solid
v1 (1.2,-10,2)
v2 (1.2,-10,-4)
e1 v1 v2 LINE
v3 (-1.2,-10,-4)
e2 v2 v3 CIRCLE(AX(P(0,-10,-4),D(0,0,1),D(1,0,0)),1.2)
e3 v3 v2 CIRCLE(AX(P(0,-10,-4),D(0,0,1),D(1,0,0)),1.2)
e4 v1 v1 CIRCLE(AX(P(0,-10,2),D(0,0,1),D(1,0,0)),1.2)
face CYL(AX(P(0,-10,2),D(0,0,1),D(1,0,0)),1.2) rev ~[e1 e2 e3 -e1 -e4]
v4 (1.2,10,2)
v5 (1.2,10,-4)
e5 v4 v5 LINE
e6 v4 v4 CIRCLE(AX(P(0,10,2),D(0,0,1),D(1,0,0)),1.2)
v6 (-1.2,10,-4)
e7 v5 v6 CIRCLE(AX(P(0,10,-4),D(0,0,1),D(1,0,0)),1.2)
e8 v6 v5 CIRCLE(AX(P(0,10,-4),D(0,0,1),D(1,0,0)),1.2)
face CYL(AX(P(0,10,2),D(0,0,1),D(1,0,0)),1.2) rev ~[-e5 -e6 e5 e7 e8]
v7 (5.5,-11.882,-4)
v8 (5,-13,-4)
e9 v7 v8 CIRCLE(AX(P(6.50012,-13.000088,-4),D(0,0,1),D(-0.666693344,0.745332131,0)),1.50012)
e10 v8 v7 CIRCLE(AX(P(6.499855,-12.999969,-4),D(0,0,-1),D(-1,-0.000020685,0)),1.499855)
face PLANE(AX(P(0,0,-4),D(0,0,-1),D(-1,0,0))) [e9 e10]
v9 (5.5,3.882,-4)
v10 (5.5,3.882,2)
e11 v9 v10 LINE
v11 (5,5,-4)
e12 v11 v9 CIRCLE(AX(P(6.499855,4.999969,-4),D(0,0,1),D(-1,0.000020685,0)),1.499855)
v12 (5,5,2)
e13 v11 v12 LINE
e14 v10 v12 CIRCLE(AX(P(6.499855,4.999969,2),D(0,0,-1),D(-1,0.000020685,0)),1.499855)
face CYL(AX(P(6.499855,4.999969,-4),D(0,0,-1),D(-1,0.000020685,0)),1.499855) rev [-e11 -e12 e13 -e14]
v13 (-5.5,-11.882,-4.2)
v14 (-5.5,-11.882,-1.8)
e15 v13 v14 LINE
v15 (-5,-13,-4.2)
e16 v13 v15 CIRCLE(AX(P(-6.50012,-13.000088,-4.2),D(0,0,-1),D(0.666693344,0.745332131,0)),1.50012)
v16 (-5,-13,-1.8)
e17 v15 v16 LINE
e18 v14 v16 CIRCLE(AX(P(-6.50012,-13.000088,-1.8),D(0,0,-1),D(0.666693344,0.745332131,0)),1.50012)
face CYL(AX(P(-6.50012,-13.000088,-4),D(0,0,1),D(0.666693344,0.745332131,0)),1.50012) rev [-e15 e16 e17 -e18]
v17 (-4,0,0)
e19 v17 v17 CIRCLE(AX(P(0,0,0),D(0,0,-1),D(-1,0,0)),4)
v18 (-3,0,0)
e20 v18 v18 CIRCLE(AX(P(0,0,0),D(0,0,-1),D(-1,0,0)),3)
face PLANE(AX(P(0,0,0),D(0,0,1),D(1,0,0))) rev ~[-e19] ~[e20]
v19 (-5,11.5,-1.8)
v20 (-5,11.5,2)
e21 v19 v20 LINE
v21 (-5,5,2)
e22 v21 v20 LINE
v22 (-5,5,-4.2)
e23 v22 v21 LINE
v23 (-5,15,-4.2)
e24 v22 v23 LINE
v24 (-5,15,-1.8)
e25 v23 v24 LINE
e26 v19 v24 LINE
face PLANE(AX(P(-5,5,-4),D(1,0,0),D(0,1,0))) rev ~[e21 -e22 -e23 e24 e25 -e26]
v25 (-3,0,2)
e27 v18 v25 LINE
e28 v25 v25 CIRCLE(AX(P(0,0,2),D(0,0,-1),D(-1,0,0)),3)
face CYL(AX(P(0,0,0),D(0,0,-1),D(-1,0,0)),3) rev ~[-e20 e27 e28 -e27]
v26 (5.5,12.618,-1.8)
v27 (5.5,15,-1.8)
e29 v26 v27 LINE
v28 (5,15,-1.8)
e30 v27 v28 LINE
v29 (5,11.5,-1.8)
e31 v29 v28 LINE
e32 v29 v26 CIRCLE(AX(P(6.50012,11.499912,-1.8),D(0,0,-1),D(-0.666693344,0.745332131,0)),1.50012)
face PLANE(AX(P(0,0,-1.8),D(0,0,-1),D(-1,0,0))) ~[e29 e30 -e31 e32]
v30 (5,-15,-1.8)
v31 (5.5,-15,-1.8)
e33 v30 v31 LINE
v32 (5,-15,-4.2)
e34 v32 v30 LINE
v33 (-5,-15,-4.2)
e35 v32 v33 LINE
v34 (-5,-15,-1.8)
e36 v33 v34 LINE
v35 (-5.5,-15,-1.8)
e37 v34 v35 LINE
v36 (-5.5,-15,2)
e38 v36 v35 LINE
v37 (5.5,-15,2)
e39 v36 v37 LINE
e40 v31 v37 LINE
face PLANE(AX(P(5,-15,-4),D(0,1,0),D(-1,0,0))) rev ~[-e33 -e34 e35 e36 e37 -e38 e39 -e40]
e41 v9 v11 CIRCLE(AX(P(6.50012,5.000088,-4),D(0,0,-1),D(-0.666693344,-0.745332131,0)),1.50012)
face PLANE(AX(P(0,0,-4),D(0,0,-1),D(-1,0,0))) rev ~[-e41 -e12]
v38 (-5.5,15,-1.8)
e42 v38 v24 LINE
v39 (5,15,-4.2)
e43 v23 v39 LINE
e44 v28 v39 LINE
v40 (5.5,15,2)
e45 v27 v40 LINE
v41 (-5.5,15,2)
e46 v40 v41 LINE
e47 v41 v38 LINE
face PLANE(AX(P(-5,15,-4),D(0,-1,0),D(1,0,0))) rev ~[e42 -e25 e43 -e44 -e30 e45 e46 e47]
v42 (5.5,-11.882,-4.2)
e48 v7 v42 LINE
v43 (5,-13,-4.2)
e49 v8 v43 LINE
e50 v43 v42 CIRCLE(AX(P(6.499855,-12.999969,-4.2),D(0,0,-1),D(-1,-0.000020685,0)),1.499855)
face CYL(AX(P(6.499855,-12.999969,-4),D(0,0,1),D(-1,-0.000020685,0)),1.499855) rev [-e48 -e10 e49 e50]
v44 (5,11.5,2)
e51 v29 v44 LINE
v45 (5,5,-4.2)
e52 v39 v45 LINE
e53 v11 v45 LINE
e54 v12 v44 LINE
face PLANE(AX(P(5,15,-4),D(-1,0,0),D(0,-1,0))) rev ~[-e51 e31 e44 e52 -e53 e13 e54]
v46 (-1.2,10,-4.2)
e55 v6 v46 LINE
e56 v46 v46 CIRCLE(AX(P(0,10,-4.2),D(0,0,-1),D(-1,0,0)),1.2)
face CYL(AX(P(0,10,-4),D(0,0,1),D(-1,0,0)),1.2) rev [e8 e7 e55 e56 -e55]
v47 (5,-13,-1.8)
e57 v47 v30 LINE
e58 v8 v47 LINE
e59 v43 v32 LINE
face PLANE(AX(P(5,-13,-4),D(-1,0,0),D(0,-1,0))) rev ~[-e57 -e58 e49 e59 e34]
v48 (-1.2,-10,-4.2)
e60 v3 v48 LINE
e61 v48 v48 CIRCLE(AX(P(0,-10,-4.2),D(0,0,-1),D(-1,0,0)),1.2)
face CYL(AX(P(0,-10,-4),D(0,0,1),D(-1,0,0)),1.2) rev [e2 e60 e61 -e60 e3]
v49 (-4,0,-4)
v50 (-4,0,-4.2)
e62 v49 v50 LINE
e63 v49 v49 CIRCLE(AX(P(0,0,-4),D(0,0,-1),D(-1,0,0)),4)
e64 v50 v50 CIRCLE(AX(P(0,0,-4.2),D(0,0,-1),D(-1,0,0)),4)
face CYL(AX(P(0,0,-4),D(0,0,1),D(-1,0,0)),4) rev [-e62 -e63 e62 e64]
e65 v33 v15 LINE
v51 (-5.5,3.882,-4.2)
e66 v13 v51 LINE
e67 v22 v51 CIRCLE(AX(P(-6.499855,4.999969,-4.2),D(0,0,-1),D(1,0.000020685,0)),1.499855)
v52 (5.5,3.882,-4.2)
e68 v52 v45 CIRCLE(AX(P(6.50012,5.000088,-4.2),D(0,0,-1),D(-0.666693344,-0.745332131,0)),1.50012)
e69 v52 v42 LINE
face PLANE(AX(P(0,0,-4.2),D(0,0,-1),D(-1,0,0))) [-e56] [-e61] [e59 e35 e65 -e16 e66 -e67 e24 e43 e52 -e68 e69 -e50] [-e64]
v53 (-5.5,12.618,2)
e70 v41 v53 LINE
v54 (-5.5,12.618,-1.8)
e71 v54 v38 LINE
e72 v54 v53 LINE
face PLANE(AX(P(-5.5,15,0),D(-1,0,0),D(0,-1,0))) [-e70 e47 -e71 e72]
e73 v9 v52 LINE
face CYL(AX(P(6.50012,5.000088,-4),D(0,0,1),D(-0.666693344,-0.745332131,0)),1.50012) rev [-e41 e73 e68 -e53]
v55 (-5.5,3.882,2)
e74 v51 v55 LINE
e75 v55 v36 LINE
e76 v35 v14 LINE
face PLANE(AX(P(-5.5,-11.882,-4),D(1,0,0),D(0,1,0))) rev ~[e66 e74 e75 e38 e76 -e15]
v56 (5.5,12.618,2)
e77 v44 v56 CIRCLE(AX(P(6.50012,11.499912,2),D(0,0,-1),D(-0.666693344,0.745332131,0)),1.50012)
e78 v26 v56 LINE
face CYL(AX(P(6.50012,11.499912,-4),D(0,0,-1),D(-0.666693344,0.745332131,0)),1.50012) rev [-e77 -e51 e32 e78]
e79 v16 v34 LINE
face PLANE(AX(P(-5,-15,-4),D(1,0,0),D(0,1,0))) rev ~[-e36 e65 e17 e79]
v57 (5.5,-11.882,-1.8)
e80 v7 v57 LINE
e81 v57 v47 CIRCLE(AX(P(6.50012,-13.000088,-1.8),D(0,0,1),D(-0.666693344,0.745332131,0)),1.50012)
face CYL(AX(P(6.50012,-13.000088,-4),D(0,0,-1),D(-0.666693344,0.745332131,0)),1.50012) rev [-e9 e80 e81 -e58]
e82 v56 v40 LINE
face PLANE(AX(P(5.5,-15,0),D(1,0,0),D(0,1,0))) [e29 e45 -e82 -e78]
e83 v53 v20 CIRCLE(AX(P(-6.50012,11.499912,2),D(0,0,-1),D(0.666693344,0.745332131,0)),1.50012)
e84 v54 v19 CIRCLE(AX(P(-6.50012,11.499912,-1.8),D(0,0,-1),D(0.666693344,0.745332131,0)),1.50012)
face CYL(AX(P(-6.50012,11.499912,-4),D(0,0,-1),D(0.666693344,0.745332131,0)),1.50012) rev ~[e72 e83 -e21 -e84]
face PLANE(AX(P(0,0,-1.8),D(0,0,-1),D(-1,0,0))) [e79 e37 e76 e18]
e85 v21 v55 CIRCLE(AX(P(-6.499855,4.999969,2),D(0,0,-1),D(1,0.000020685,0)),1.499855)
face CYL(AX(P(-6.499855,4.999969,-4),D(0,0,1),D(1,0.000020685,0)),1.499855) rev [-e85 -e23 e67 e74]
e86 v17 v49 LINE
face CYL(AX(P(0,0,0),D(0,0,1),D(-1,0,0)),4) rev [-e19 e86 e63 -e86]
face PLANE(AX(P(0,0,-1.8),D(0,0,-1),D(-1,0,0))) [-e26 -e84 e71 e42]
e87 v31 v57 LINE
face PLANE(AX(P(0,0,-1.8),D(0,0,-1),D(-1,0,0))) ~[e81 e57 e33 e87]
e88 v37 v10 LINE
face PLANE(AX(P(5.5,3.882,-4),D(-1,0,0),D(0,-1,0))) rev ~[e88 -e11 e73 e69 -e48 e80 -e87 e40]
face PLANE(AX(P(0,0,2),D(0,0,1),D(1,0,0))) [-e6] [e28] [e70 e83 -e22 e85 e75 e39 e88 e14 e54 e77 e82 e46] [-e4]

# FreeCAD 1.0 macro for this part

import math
import FreeCAD as App
import Part
import Sketcher


def add_polygon(sketch, points):
    """Adds a closed chain of lines whose ends are joined by coincident constraints."""
    first, n = sketch.GeometryCount, len(points)
    for a, b in zip(points, points[1:] + points[:1]):
        sketch.addGeometry(Part.LineSegment(App.Vector(*a, 0), App.Vector(*b, 0)), False)
    for i in range(n):
        sketch.addConstraint(Sketcher.Constraint("Coincident", first + i, 2, first + (i + 1) % n, 1))

doc = App.newDocument("Part")
body = doc.addObject("PartDesign::Body", "Body")

sketch1 = body.newObject("Sketcher::SketchObject", "Sketch")
sketch1.AttachmentSupport = (doc.getObject("XY_Plane"), [""])
sketch1.MapMode = "FlatFace"
add_polygon(sketch1, [(-5.5, 15), (-5.5, -15), (5.5, -15), (5.5, 15)])
sketch1.addConstraint([
    Sketcher.Constraint("Vertical", 0),
    Sketcher.Constraint("Horizontal", 1),
    Sketcher.Constraint("Vertical", 2),
    Sketcher.Constraint("Horizontal", 3),
    Sketcher.Constraint("Symmetric", 0, 2, 2, 2, -1, 1),
    Sketcher.Constraint("DistanceY", 0, 2, -1, 1, 15.0),
    Sketcher.Constraint("DistanceX", 0, 2, -1, 1, 5.5),
])
pad1 = body.newObject("PartDesign::Pad", "Pad")
pad1.Profile = sketch1
pad1.Length = 2

sketch2 = body.newObject("Sketcher::SketchObject", "Sketch001")
sketch2.AttachmentSupport = (doc.getObject("XY_Plane"), [""])
sketch2.MapMode = "FlatFace"
add_polygon(sketch2, [(5.5, -15), (-5.5, -15), (-5.5, 15), (5.5, 15)])
sketch2.addGeometry(Part.Circle(App.Vector(0, 0, 0), App.Vector(0, 0, 1), 4), False)
sketch2.addConstraint([
    Sketcher.Constraint("Horizontal", 0),
    Sketcher.Constraint("Vertical", 1),
    Sketcher.Constraint("Horizontal", 2),
    Sketcher.Constraint("Vertical", 3),
    Sketcher.Constraint("Coincident", 4, 3, -1, 1),
    Sketcher.Constraint("Symmetric", 0, 2, 2, 2, -1, 1),
    Sketcher.Constraint("Diameter", 4, 8.0),
    Sketcher.Constraint("DistanceX", 0, 2, 0, 1, 11.0),
    Sketcher.Constraint("DistanceY", 1, 1, 1, 2, 30.0),
])
pad2 = body.newObject("PartDesign::Pad", "Pad001")
pad2.Profile = sketch2
pad2.Length = 4
pad2.Reversed = True

sketch3 = body.newObject("Sketcher::SketchObject", "Sketch002")
sketch3.AttachmentSupport = (doc.getObject("XY_Plane"), [""])
sketch3.MapMode = "FlatFace"
sketch3.AttachmentOffset = App.Placement(App.Vector(0, 0, 2), App.Rotation())
sketch3.addGeometry([
    Part.Circle(App.Vector(0, 10, 0), App.Vector(0, 0, 1), 1.2),
    Part.Circle(App.Vector(0, -10, 0), App.Vector(0, 0, 1), 1.2),
], False)
sketch3.addConstraint([
    Sketcher.Constraint("Equal", 0, 1),
    Sketcher.Constraint("Symmetric", 0, 3, 1, 3, -1, 1),
    Sketcher.Constraint("PointOnObject", 0, 3, -2),
    Sketcher.Constraint("Diameter", 0, 2.4),
    Sketcher.Constraint("DistanceY", -1, 1, 0, 3, 10.0),
])
pocket1 = body.newObject("PartDesign::Pocket", "Pocket")
pocket1.Profile = sketch3
pocket1.Length = 10

sketch4 = body.newObject("Sketcher::SketchObject", "Sketch003")
sketch4.AttachmentSupport = (doc.getObject("XY_Plane"), [""])
sketch4.MapMode = "FlatFace"
sketch4.AttachmentOffset = App.Placement(App.Vector(0, 0, -4), App.Rotation())
sketch4.addGeometry([
    Part.ArcOfCircle(Part.Circle(App.Vector(-6.5, 11.5, 0), App.Vector(0, 0, 1), 1.499975), math.radians(0), math.radians(48.18882)),
    Part.LineSegment(App.Vector(-5, 11.5, 0), App.Vector(-5, 5, 0)),
    Part.ArcOfCircle(Part.Circle(App.Vector(-6.5, 5, 0), App.Vector(0, 0, 1), 1.5), math.radians(-48.18882), math.radians(0)),
    Part.LineSegment(App.Vector(-5.5, 3.882, 0), App.Vector(-5.5, 12.618, 0)),
], False)
sketch4.addConstraint([
    Sketcher.Constraint("Tangent", 0, 1, 1, 1),
    Sketcher.Constraint("Tangent", 1, 2, 2, 2),
    Sketcher.Constraint("Coincident", 2, 1, 3, 1),
    Sketcher.Constraint("Coincident", 3, 2, 0, 2),
    Sketcher.Constraint("Vertical", 1),
    Sketcher.Constraint("Vertical", 3),
    Sketcher.Constraint("Equal", 0, 2),
    Sketcher.Constraint("Radius", 0, 1.5),
    Sketcher.Constraint("DistanceX", 2, 1, 1, 2, 0.5),
    Sketcher.Constraint("DistanceY", 1, 2, 1, 1, 6.5),
    Sketcher.Constraint("DistanceY", -1, 1, 2, 3, 5.0),
    Sketcher.Constraint("DistanceX", 0, 1, -1, 1, 5.0),
])
pocket2 = body.newObject("PartDesign::Pocket", "Pocket001")
pocket2.Profile = sketch4
pocket2.Length = 100
pocket2.Reversed = True

sketch5 = body.newObject("Sketcher::SketchObject", "Sketch004")
sketch5.AttachmentSupport = (doc.getObject("XY_Plane"), [""])
sketch5.MapMode = "FlatFace"
sketch5.AttachmentOffset = App.Placement(App.Vector(0, 0, -4), App.Rotation())
add_polygon(sketch5, [(-5.5, 15), (-5, 15), (-5, 10.597), (-5.5, 10.597)])
sketch5.addGeometry(Part.LineSegment(App.Vector(-5.5, -15, 0), App.Vector(-5.5, -11.882, 0)), False)
sketch5.addGeometry(Part.ArcOfCircle(Part.Circle(App.Vector(-6.5, -13, 0), App.Vector(0, 0, 1), 1.499975), math.radians(0), math.radians(48.18882)), False)
sketch5.addGeometry(Part.LineSegment(App.Vector(-5, -13, 0), App.Vector(-5, -15, 0)), False)
sketch5.addGeometry(Part.LineSegment(App.Vector(-5, -15, 0), App.Vector(-5.5, -15, 0)), False)
sketch5.addConstraint([
    Sketcher.Constraint("Coincident", 4, 2, 5, 2),
    Sketcher.Constraint("Tangent", 5, 1, 6, 1),
    Sketcher.Constraint("Coincident", 6, 2, 7, 1),
    Sketcher.Constraint("Coincident", 7, 2, 4, 1),
    Sketcher.Constraint("Horizontal", 0),
    Sketcher.Constraint("Vertical", 1),
    Sketcher.Constraint("Horizontal", 2),
    Sketcher.Constraint("Vertical", 3),
    Sketcher.Constraint("Vertical", 4),
    Sketcher.Constraint("Vertical", 6),
    Sketcher.Constraint("Horizontal", 7),
    Sketcher.Constraint("Symmetric", 0, 2, 6, 2, -1),
    Sketcher.Constraint("Vertical", 3, 2, 4, 2),
    Sketcher.Constraint("Radius", 5, 1.5),
    Sketcher.Constraint("DistanceY", 6, 2, 6, 1, 2.0),
    Sketcher.Constraint("DistanceX", 0, 1, 0, 2, 0.5),
    Sketcher.Constraint("DistanceY", 5, 3, -1, 1, 13.0),
    Sketcher.Constraint("DistanceX", 0, 2, -1, 1, 5.0),
    Sketcher.Constraint("DistanceY", 1, 2, 1, 1, 4.403),
])
pocket3 = body.newObject("PartDesign::Pocket", "Pocket002")
pocket3.Profile = sketch5
pocket3.Length = 2.2
pocket3.Reversed = True
doc.recompute()

mirrored = body.newObject("PartDesign::Mirrored", "Mirrored")
mirrored.Originals = [pocket3, pocket2]
mirrored.MirrorPlane = (doc.getObject("YZ_Plane"), [""])
body.Tip = mirrored

sketch6 = body.newObject("Sketcher::SketchObject", "Sketch005")
sketch6.AttachmentSupport = (doc.getObject("XY_Plane"), [""])
sketch6.MapMode = "FlatFace"
sketch6.AttachmentOffset = App.Placement(App.Vector(0, 0, -4), App.Rotation())
sketch6.addGeometry([
    Part.LineSegment(App.Vector(-5, 15, 0), App.Vector(5, 15, 0)),
    Part.LineSegment(App.Vector(5, 15, 0), App.Vector(5, 5, 0)),
    Part.ArcOfCircle(Part.Circle(App.Vector(6.5, 5, 0), App.Vector(0, 0, 1), 1.499975), math.radians(180), math.radians(228.18882)),
    Part.LineSegment(App.Vector(5.5, 3.882, 0), App.Vector(5.5, -11.882, 0)),
    Part.ArcOfCircle(Part.Circle(App.Vector(6.5, -13, 0), App.Vector(0, 0, 1), 1.5), math.radians(131.81118), math.radians(180)),
    Part.LineSegment(App.Vector(5, -13, 0), App.Vector(5, -15, 0)),
    Part.LineSegment(App.Vector(5, -15, 0), App.Vector(-5, -15, 0)),
    Part.LineSegment(App.Vector(-5, -15, 0), App.Vector(-5, -13, 0)),
    Part.ArcOfCircle(Part.Circle(App.Vector(-6.5, -13, 0), App.Vector(0, 0, 1), 1.499975), math.radians(0), math.radians(48.18882)),
    Part.LineSegment(App.Vector(-5.5, -11.882, 0), App.Vector(-5.5, 3.882, 0)),
    Part.ArcOfCircle(Part.Circle(App.Vector(-6.5, 5, 0), App.Vector(0, 0, 1), 1.5), math.radians(-48.18882), math.radians(0)),
    Part.LineSegment(App.Vector(-5, 5, 0), App.Vector(-5, 15, 0)),
    Part.Circle(App.Vector(0, -10, 0), App.Vector(0, 0, 1), 1.2),
    Part.Circle(App.Vector(0, 0, 0), App.Vector(0, 0, 1), 4),
    Part.Circle(App.Vector(0, 10, 0), App.Vector(0, 0, 1), 1.2),
], False)
sketch6.addConstraint([
    Sketcher.Constraint("Coincident", 0, 2, 1, 1),
    Sketcher.Constraint("Tangent", 1, 2, 2, 1),
    Sketcher.Constraint("Coincident", 2, 2, 3, 1),
    Sketcher.Constraint("Coincident", 3, 2, 4, 1),
    Sketcher.Constraint("Tangent", 4, 2, 5, 1),
    Sketcher.Constraint("Coincident", 5, 2, 6, 1),
    Sketcher.Constraint("Coincident", 6, 2, 7, 1),
    Sketcher.Constraint("Tangent", 7, 2, 8, 1),
    Sketcher.Constraint("Coincident", 8, 2, 9, 1),
    Sketcher.Constraint("Coincident", 9, 2, 10, 1),
    Sketcher.Constraint("Tangent", 10, 2, 11, 1),
    Sketcher.Constraint("Coincident", 11, 2, 0, 1),
    Sketcher.Constraint("Horizontal", 0),
    Sketcher.Constraint("Vertical", 1),
    Sketcher.Constraint("Vertical", 3),
    Sketcher.Constraint("Vertical", 5),
    Sketcher.Constraint("Horizontal", 6),
    Sketcher.Constraint("Vertical", 7),
    Sketcher.Constraint("Vertical", 9),
    Sketcher.Constraint("Vertical", 11),
    Sketcher.Constraint("Coincident", 13, 3, -1, 1),
    Sketcher.Constraint("Equal", 2, 4),
    Sketcher.Constraint("Equal", 4, 8),
    Sketcher.Constraint("Equal", 8, 10),
    Sketcher.Constraint("Equal", 12, 14),
    Sketcher.Constraint("Symmetric", 12, 3, 14, 3, -1, 1),
    Sketcher.Constraint("Symmetric", 0, 2, 6, 2, -1, 1),
    Sketcher.Constraint("Symmetric", 4, 3, 8, 3, -2),
    Sketcher.Constraint("Symmetric", 2, 3, 10, 3, -2),
    Sketcher.Constraint("PointOnObject", 12, 3, -2),
    Sketcher.Constraint("Horizontal", 3, 2, 8, 2),
    Sketcher.Constraint("Equal", 6, 1),
    Sketcher.Constraint("Diameter", 13, 8.0),
    Sketcher.Constraint("Diameter", 12, 2.4),
    Sketcher.Constraint("Radius", 2, 1.5),
    Sketcher.Constraint("DistanceX", 0, 1, 0, 2, 10.0),
    Sketcher.Constraint("DistanceY", 5, 2, 5, 1, 2.0),
    Sketcher.Constraint("DistanceY", -1, 1, 2, 3, 5.0),
    Sketcher.Constraint("DistanceY", 12, 3, -1, 1, 10.0),
    Sketcher.Constraint("DistanceX", 2, 2, 2, 3, 1.0),
])
pad3 = body.newObject("PartDesign::Pad", "Pad002")
pad3.Profile = sketch6
pad3.Length = 0.2
pad3.Reversed = True

sketch7 = body.newObject("Sketcher::SketchObject", "Sketch006")
sketch7.AttachmentSupport = (doc.getObject("XY_Plane"), [""])
sketch7.MapMode = "FlatFace"
sketch7.addGeometry(Part.Circle(App.Vector(0, 0, 0), App.Vector(0, 0, 1), 3), False)
sketch7.addConstraint([
    Sketcher.Constraint("Coincident", 0, 3, -1, 1),
    Sketcher.Constraint("Diameter", 0, 6.0),
])
pocket4 = body.newObject("PartDesign::Pocket", "Pocket003")
pocket4.Profile = sketch7
pocket4.Length = 100
pocket4.Reversed = True

doc.recompute()
